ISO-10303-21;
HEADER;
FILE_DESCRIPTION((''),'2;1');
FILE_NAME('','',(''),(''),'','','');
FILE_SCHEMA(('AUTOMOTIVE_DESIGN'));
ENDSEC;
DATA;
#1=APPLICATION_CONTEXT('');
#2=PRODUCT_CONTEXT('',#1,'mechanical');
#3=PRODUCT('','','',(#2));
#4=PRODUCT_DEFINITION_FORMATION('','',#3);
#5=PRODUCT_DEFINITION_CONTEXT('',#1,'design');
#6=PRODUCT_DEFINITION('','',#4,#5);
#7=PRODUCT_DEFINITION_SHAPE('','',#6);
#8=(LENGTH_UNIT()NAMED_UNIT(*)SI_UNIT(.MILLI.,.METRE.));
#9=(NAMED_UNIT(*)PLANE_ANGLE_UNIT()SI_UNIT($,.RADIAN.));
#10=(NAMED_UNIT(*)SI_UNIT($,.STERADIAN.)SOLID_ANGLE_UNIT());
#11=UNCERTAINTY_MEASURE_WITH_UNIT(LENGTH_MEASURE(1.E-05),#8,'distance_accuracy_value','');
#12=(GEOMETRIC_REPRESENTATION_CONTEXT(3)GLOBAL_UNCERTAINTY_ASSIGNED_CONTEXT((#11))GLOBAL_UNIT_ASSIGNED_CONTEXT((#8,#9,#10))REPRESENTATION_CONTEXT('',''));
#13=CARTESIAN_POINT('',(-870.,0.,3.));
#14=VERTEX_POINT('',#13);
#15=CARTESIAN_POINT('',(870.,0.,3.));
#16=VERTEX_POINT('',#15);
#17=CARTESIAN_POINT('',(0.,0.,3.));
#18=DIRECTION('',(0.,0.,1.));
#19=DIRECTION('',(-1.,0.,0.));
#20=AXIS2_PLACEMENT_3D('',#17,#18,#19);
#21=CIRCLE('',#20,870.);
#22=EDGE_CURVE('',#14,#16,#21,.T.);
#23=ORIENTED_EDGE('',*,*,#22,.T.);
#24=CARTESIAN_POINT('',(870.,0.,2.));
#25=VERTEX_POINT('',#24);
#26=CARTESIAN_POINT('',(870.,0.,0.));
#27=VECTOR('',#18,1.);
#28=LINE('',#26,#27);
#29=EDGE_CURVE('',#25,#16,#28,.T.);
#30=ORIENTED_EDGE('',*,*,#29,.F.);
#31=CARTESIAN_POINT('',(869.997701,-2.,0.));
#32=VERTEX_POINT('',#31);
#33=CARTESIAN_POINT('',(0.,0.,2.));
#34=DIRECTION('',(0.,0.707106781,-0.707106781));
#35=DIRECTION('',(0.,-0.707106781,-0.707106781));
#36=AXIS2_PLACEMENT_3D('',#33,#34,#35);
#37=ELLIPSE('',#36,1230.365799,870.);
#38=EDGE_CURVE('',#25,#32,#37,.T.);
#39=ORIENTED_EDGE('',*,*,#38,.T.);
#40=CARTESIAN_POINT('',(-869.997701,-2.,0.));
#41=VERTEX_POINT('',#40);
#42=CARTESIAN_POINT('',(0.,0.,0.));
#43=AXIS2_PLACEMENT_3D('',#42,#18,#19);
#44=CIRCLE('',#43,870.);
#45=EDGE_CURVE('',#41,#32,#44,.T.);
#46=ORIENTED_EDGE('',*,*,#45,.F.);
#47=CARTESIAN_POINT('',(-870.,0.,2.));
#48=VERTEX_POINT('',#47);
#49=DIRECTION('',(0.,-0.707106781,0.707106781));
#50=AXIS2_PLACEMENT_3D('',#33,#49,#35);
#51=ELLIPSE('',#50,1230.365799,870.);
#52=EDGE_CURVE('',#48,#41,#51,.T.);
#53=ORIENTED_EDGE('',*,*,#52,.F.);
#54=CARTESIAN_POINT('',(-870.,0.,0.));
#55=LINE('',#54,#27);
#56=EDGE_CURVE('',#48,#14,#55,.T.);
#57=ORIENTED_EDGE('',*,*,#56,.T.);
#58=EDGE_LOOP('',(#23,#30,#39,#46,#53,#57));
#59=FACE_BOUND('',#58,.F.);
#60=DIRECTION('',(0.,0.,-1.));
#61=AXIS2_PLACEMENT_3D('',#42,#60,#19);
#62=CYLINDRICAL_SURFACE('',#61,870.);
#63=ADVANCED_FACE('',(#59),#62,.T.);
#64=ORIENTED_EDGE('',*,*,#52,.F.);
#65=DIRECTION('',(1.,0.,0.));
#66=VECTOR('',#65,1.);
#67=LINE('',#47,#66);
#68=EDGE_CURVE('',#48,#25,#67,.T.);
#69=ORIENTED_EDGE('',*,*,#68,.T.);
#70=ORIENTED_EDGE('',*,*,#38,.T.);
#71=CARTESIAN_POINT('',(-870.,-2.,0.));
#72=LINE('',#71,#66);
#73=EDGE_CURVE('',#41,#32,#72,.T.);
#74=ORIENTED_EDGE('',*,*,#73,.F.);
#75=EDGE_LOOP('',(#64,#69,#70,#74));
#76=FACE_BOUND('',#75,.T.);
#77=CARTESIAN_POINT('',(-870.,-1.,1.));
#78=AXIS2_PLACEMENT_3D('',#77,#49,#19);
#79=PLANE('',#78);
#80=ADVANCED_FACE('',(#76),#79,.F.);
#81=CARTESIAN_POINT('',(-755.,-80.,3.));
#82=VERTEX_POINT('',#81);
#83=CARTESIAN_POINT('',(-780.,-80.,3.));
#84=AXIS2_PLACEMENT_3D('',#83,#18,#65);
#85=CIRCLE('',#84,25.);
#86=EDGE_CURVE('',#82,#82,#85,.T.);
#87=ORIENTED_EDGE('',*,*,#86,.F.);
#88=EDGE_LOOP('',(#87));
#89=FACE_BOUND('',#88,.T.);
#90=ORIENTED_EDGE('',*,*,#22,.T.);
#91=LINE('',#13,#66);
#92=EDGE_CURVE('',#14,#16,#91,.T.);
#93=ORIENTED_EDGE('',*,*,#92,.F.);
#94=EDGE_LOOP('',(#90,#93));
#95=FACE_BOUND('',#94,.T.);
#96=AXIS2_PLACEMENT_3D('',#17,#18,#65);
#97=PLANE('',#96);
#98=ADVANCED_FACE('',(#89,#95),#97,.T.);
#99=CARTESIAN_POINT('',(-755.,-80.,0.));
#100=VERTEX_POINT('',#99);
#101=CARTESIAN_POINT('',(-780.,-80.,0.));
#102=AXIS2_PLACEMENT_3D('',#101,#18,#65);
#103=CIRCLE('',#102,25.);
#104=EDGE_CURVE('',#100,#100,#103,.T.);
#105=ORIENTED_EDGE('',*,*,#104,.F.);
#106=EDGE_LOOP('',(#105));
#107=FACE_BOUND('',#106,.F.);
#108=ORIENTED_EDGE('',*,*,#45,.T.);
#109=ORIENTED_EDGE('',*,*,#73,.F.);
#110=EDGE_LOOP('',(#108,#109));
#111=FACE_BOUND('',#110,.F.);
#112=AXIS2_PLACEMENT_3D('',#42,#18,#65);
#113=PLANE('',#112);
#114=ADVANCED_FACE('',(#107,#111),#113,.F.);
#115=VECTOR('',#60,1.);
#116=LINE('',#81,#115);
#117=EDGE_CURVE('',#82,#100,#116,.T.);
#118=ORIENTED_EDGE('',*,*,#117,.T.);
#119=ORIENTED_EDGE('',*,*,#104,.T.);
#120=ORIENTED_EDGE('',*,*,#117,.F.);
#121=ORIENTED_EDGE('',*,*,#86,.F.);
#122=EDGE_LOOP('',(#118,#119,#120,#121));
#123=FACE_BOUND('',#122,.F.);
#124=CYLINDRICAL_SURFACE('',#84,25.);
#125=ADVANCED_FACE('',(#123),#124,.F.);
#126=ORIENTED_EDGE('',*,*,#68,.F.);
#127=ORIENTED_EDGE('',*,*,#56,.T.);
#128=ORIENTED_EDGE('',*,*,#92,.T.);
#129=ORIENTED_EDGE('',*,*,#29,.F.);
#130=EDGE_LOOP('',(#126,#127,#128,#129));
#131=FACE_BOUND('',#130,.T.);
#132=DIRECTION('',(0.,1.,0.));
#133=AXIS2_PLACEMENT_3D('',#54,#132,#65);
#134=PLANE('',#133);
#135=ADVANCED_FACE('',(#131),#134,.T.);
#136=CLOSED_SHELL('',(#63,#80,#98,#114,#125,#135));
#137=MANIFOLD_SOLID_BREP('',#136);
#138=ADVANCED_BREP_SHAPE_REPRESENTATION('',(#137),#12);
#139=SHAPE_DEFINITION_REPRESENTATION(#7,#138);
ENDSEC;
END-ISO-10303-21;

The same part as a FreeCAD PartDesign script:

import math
import FreeCAD as App
import Part
import Sketcher

V = App.Vector


def edges_at(feature, points):
    """Names of the edges that pass closest to the given points."""
    edges = feature.Shape.Edges
    near = lambda p: min(range(len(edges)), key=lambda i: edges[i].distToShape(Part.Vertex(*p))[0])
    return sorted({f"Edge{near(p) + 1}" for p in points})

doc = App.newDocument("Part")
params = doc.addObject("Spreadsheet::Sheet", "Params")
for row, (alias, value) in enumerate([
    ("sketch1_radius", "870 mm"),
    ("pad1_length", "3 mm"),
    ("sketch2_diameter", "50 mm"),
    ("pocket1_length", "10 mm"),
    ("chamfer_size", "2 mm"),
], start=1):
    params.set(f"A{row}", alias)
    params.set(f"B{row}", "=" + value)
    params.setAlias(f"B{row}", alias)

body = doc.addObject("PartDesign::Body", "Body")

sketch1 = doc.addObject("Sketcher::SketchObject", "Sketch")
body.addObject(sketch1)
sketch1.AttachmentSupport = (doc.XY_Plane, [""])
sketch1.MapMode = "FlatFace"
sketch1.addGeometry([
    Part.LineSegment(V(870, 0, 0), V(-870, 0, 0)),
    Part.ArcOfCircle(Part.Circle(V(0, 0, 0), V(0, 0, 1), 870), math.radians(180), math.radians(360)),
], False)
sketch1.addConstraint([
    Sketcher.Constraint("Coincident", 0, 1, 1, 2),
    Sketcher.Constraint("Coincident", 1, 1, 0, 2),
    Sketcher.Constraint("Horizontal", 0),
    Sketcher.Constraint("Coincident", 1, 3, -1, 1),
    Sketcher.Constraint("PointOnObject", 0, 1, -1),
    Sketcher.Constraint("Radius", 1, 870.0),
])
sketch1.setExpression("Constraints[5]", "Params.sketch1_radius")
pad1 = doc.addObject("PartDesign::Pad", "Pad")
body.addObject(pad1)
pad1.Profile = sketch1
pad1.setExpression("Length", "Params.pad1_length")

sketch2 = doc.addObject("Sketcher::SketchObject", "Sketch001")
body.addObject(sketch2)
sketch2.AttachmentSupport = (doc.XY_Plane, [""])
sketch2.MapMode = "FlatFace"
sketch2.AttachmentOffset = App.Placement(V(0, 0, 3), App.Rotation())
sketch2.addGeometry(Part.Circle(V(-780, -80, 0), V(0, 0, 1), 25), False)
sketch2.addConstraint([
    Sketcher.Constraint("Diameter", 0, 50.0),
    Sketcher.Constraint("DistanceX", 0, 3, -1, 1, 780.0),
    Sketcher.Constraint("DistanceY", 0, 3, -1, 1, 80.0),
])
sketch2.setExpression("Constraints[0]", "Params.sketch2_diameter")
pocket1 = doc.addObject("PartDesign::Pocket", "Pocket")
body.addObject(pocket1)
pocket1.Profile = sketch2
pocket1.setExpression("Length", "Params.pocket1_length")
doc.recompute()

chamfer = doc.addObject("PartDesign::Chamfer", "Chamfer")
body.addObject(chamfer)
chamfer.Base = (pocket1, edges_at(pocket1, [(0, 0, 0)]))
chamfer.setExpression("Size", "Params.chamfer_size")

doc.recompute()
